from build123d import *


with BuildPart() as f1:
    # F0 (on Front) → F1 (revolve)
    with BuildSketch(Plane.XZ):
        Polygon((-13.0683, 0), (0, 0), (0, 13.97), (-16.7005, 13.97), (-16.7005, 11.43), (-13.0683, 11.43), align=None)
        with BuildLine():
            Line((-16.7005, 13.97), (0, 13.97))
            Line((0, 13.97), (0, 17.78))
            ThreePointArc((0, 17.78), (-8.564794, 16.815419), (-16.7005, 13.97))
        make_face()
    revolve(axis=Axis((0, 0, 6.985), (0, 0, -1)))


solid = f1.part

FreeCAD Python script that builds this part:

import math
import FreeCAD as App
import Part
import Sketcher

V = App.Vector
Q = App.Units.Quantity

doc = App.newDocument("Part")
params = doc.addObject("Spreadsheet::Sheet", "Params")
for row, (alias, value) in enumerate([
    ("sketch1_height", "0.7 in"),
    ("sketch1_height2", "0.1 in"),
    ("sketch1_height3", "0.45 in"),
    ("sketch1_width", "0.143 in"),
    ("revolution_angle", "360 deg"),
], start=1):
    params.set(f"A{row}", alias)
    params.set(f"B{row}", "=" + value)
    params.setAlias(f"B{row}", alias)

body = doc.addObject("PartDesign::Body", "Body")

# Sketch on XZ plane
sketch1 = body.newObject("Sketcher::SketchObject", "Sketch")
sketch1.AttachmentSupport = (doc.getObject("XZ_Plane"), [""])
sketch1.MapMode = "FlatFace"
sketch1.addGeometry([
    Part.LineSegment(V(-13.0683, 0, 0), V(0, 0, 0)),  # 0
    Part.LineSegment(V(0, 0, 0), V(0, 17.78, 0)),  # 1
    Part.ArcOfCircle(Part.Circle(V(-0.000001, -20.726925, 0), V(0, 0, 1), 38.506925), math.radians(89.999999), math.radians(115.702677)),  # 2
    Part.LineSegment(V(-16.7005, 13.97, 0), V(-16.7005, 11.43, 0)),  # 3
    Part.LineSegment(V(-16.7005, 11.43, 0), V(-13.0683, 11.43, 0)),  # 4
    Part.LineSegment(V(-13.0683, 11.43, 0), V(-13.0683, 0, 0)),  # 5
], False)
sketch1.addConstraint([
    Sketcher.Constraint("Coincident", 0, 2, 1, 1),
    Sketcher.Constraint("Coincident", 1, 2, 2, 1),
    Sketcher.Constraint("Coincident", 2, 2, 3, 1),
    Sketcher.Constraint("Coincident", 3, 2, 4, 1),
    Sketcher.Constraint("Coincident", 4, 2, 5, 1),
    Sketcher.Constraint("Coincident", 5, 2, 0, 1),
    Sketcher.Constraint("Horizontal", 0),
    Sketcher.Constraint("Vertical", 1),
    Sketcher.Constraint("Vertical", 3),
    Sketcher.Constraint("Horizontal", 4),
    Sketcher.Constraint("Vertical", 5),
    Sketcher.Constraint("Coincident", 0, 2, -1, 1),
    Sketcher.Constraint("PointOnObject", 2, 3, -2),
    Sketcher.Constraint("DistanceY", 1, 1, 1, 2, Q("0.7 in")),
    Sketcher.Constraint("DistanceY", 3, 2, 3, 1, Q("0.1 in")),
    Sketcher.Constraint("DistanceY", 5, 2, 5, 1, Q("0.45 in")),
    Sketcher.Constraint("DistanceX", 4, 1, 4, 2, Q("0.143 in")),
    Sketcher.Constraint("DistanceX", 0, 1, 0, 2, Q("0.5145 in")),
])
sketch1.setExpression("Constraints[13]", "Params.sketch1_height")
sketch1.setExpression("Constraints[14]", "Params.sketch1_height2")
sketch1.setExpression("Constraints[15]", "Params.sketch1_height3")
sketch1.setExpression("Constraints[16]", "Params.sketch1_width")
revolution = body.newObject("PartDesign::Revolution", "Revolution")
revolution.Profile = sketch1
revolution.ReferenceAxis = (sketch1, ["V_Axis"])
revolution.setExpression("Angle", "Params.revolution_angle")

doc.recompute()
